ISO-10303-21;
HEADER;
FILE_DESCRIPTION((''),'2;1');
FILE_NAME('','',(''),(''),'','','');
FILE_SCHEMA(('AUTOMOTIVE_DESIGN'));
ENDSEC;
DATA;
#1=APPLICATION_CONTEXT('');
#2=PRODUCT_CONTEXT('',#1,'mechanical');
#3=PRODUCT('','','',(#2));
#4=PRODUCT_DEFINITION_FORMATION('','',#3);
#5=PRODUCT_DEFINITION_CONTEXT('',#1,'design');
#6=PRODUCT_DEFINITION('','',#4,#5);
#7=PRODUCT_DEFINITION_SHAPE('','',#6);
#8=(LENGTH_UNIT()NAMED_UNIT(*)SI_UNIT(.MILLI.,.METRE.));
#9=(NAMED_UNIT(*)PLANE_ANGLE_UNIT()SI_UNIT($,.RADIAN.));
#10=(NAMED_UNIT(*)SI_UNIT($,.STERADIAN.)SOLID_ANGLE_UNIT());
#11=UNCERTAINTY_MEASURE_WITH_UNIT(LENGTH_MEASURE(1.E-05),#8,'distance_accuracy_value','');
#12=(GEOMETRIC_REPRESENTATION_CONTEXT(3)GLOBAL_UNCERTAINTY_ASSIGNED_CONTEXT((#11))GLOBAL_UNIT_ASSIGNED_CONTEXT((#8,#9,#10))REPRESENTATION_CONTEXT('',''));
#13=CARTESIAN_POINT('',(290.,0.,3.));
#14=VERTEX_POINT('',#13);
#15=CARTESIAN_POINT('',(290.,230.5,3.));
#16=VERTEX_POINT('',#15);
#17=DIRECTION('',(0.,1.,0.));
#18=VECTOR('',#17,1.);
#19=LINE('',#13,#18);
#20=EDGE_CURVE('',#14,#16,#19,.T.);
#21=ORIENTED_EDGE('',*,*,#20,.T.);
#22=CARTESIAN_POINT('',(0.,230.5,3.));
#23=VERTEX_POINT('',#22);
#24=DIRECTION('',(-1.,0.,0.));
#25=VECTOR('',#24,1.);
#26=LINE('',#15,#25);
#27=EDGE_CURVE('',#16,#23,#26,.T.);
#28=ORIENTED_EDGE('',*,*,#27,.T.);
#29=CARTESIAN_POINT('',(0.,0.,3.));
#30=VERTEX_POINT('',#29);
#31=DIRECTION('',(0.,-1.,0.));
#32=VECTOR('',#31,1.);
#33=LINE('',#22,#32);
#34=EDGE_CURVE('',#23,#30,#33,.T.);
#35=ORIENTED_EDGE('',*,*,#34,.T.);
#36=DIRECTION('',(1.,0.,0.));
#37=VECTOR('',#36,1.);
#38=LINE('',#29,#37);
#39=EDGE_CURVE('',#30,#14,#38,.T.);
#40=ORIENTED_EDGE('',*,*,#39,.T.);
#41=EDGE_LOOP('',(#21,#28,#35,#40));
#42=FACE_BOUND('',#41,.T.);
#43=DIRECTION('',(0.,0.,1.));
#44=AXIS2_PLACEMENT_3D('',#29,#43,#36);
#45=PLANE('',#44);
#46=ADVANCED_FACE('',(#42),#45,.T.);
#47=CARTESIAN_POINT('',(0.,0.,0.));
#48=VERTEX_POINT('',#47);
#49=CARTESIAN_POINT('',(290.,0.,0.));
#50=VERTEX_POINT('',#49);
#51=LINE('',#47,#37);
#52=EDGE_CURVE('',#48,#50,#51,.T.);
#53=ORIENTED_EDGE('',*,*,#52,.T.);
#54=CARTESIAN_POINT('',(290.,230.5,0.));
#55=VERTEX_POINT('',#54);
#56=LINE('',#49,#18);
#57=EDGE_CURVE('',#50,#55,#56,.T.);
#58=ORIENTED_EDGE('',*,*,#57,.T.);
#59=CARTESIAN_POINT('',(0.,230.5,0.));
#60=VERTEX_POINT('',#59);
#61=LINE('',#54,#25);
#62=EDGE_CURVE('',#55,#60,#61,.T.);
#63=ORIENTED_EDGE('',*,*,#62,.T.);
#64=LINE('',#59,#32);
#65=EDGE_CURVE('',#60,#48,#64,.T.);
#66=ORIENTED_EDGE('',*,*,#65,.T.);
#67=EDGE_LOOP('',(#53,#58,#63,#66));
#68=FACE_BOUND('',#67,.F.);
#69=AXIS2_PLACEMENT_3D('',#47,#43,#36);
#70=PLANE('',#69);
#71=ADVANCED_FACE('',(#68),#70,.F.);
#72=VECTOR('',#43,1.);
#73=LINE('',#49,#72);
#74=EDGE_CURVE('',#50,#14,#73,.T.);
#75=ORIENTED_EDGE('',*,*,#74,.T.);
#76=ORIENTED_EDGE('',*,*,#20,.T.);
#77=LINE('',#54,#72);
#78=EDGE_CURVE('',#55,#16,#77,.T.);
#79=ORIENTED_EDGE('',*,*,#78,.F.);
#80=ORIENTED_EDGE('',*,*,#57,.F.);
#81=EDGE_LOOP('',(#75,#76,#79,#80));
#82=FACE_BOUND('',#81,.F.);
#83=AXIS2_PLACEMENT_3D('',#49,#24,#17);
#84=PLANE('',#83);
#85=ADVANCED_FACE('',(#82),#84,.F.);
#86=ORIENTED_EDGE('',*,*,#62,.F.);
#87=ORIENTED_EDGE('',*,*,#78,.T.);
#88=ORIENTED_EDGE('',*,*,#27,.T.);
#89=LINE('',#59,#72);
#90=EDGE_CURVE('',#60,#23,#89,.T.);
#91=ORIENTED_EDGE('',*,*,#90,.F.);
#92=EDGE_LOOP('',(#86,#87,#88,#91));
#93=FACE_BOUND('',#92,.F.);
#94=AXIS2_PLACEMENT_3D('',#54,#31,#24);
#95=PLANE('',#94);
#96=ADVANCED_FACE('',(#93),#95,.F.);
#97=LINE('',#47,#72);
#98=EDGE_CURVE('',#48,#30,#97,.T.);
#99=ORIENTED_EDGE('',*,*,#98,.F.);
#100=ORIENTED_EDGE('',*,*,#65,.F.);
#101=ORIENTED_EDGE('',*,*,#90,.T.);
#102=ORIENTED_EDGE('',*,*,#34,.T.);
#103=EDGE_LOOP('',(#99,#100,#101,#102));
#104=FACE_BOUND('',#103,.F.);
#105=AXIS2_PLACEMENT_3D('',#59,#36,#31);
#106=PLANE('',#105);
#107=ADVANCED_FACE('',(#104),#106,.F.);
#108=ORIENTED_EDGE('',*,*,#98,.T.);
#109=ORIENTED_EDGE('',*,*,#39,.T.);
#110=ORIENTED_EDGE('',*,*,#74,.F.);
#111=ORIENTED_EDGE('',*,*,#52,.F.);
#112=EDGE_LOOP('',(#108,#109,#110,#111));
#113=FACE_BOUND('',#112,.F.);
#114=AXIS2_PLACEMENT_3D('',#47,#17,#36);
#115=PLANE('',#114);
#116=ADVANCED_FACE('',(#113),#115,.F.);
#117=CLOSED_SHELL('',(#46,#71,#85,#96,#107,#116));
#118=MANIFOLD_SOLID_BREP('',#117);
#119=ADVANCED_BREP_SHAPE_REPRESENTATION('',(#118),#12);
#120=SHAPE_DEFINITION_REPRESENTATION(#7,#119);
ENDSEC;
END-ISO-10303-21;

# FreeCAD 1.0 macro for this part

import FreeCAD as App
import Part
import Sketcher
Q = App.Units.Quantity


def add_polygon(sketch, points):
    """Adds a closed chain of lines whose ends are joined by coincident constraints."""
    first, n = sketch.GeometryCount, len(points)
    for a, b in zip(points, points[1:] + points[:1]):
        sketch.addGeometry(Part.LineSegment(App.Vector(*a, 0), App.Vector(*b, 0)), False)
    for i in range(n):
        sketch.addConstraint(Sketcher.Constraint("Coincident", first + i, 2, first + (i + 1) % n, 1))

doc = App.newDocument("Part")
params = doc.addObject("Spreadsheet::Sheet", "Params")
for row, (alias, value) in enumerate([
    ("sketch1_width", "290 mm"),
    ("sketch1_height", "230.5 mm"),
    ("pad1_length", "3 mm"),
], start=1):
    params.set(f"A{row}", alias)
    params.set(f"B{row}", "=" + value)
    params.setAlias(f"B{row}", alias)

body = doc.addObject("PartDesign::Body", "Body")

sketch1 = doc.addObject("Sketcher::SketchObject", "Sketch")
body.addObject(sketch1)
sketch1.AttachmentSupport = (doc.XY_Plane, [""])
sketch1.MapMode = "FlatFace"
add_polygon(sketch1, [(0, 230.5), (0, 0), (290, 0), (290, 230.5)])
sketch1.addConstraint(Sketcher.Constraint("Vertical", 0))
sketch1.addConstraint(Sketcher.Constraint("Horizontal", 1))
sketch1.addConstraint(Sketcher.Constraint("Vertical", 2))
sketch1.addConstraint(Sketcher.Constraint("Horizontal", 3))
sketch1.addConstraint(Sketcher.Constraint("Coincident", 0, 2, -1, 1))
sketch1.addConstraint(Sketcher.Constraint("DistanceX", 1, 1, 1, 2, Q("290 mm")))
sketch1.addConstraint(Sketcher.Constraint("DistanceY", 0, 2, 0, 1, Q("230.5 mm")))
sketch1.setExpression("Constraints[9]", "Params.sketch1_width")
sketch1.setExpression("Constraints[10]", "Params.sketch1_height")
pad1 = doc.addObject("PartDesign::Pad", "Pad")
body.addObject(pad1)
pad1.Profile = sketch1
pad1.setExpression("Length", "Params.pad1_length")

doc.recompute()
